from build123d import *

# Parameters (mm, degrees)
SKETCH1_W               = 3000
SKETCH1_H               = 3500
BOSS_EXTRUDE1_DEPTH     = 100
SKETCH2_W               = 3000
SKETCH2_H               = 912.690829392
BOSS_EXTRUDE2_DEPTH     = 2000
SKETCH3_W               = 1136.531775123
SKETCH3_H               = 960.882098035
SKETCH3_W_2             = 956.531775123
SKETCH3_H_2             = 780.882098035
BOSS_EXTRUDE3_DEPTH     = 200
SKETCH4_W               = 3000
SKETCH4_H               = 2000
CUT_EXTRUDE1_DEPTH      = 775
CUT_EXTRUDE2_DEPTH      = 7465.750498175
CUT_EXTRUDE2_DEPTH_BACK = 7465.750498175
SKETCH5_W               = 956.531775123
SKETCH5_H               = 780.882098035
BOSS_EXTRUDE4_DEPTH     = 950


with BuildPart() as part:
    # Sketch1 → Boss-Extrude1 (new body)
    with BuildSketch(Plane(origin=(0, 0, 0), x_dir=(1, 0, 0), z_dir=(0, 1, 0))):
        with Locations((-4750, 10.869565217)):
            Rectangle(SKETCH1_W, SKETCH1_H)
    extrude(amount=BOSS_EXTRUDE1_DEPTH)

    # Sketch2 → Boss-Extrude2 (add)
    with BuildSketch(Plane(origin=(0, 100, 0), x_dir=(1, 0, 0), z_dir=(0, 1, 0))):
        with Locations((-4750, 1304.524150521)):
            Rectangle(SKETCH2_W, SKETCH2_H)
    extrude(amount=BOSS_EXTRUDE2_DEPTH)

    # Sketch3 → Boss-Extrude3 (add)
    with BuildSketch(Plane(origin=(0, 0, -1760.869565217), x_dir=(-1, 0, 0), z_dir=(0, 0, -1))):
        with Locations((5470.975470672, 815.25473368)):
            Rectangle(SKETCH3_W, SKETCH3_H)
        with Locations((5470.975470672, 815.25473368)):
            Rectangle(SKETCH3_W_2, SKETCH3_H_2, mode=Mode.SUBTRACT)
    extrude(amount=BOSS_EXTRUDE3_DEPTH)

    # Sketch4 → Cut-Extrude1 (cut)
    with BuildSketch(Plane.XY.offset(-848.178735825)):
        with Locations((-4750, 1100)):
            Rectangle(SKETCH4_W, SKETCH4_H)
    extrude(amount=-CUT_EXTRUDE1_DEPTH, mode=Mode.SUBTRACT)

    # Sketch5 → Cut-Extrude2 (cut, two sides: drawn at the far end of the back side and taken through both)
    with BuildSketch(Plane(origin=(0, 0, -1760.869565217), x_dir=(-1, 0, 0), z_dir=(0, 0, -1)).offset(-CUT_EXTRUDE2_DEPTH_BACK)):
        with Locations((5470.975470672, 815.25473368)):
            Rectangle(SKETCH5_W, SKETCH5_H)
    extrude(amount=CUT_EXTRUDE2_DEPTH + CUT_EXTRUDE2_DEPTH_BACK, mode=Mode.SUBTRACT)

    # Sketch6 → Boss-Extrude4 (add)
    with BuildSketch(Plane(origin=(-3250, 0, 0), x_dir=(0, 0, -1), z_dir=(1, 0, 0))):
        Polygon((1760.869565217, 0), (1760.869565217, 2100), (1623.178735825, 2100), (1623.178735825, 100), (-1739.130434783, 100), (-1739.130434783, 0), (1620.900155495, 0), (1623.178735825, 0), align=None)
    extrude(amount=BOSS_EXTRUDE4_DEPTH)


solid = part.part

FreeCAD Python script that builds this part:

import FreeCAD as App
import Part
import Sketcher

V = App.Vector


def add_polygon(sketch, points):
    """Adds a closed chain of lines whose ends are joined by coincident constraints."""
    first, n = sketch.GeometryCount, len(points)
    for a, b in zip(points, points[1:] + points[:1]):
        sketch.addGeometry(Part.LineSegment(App.Vector(*a, 0), App.Vector(*b, 0)), False)
    for i in range(n):
        sketch.addConstraint(Sketcher.Constraint("Coincident", first + i, 2, first + (i + 1) % n, 1))

doc = App.newDocument("Part")
body = doc.addObject("PartDesign::Body", "Body")

sketch1 = body.newObject("Sketcher::SketchObject", "Sketch")
sketch1.AttachmentSupport = (doc.getObject("XZ_Plane"), [""])
sketch1.MapMode = "FlatFace"
add_polygon(sketch1, [(-6250, -1761), (-6250, 1739), (-3250, 1739), (-3250, -1761)])
sketch1.addConstraint(Sketcher.Constraint("Vertical", 0))
sketch1.addConstraint(Sketcher.Constraint("Horizontal", 1))
sketch1.addConstraint(Sketcher.Constraint("Vertical", 2))
sketch1.addConstraint(Sketcher.Constraint("Horizontal", 3))
sketch1.addConstraint(Sketcher.Constraint("DistanceX", 1, 1, 1, 2, 3000.0))
sketch1.addConstraint(Sketcher.Constraint("DistanceY", 0, 1, 0, 2, 3500.0))
sketch1.addConstraint(Sketcher.Constraint("DistanceX", 0, 2, -1, 1, 6250.0))
sketch1.addConstraint(Sketcher.Constraint("DistanceY", -1, 1, 0, 2, 1739.130435))
pad1 = body.newObject("PartDesign::Pad", "Pad")
pad1.Profile = sketch1
pad1.Length = 100
pad1.Reversed = True

sketch2 = body.newObject("Sketcher::SketchObject", "Sketch001")
sketch2.AttachmentSupport = (doc.getObject("XZ_Plane"), [""])
sketch2.MapMode = "FlatFace"
sketch2.AttachmentOffset = App.Placement(V(0, 0, -100), App.Rotation())
add_polygon(sketch2, [(-6250, -1761), (-6250, -848), (-3250, -848), (-3250, -1761)])
sketch2.addConstraint(Sketcher.Constraint("Vertical", 0))
sketch2.addConstraint(Sketcher.Constraint("Horizontal", 1))
sketch2.addConstraint(Sketcher.Constraint("Vertical", 2))
sketch2.addConstraint(Sketcher.Constraint("Horizontal", 3))
sketch2.addConstraint(Sketcher.Constraint("DistanceX", 1, 1, 1, 2, 3000.0))
sketch2.addConstraint(Sketcher.Constraint("DistanceX", 0, 2, -1, 1, 6250.0))
sketch2.addConstraint(Sketcher.Constraint("DistanceY", 0, 1, 0, 2, 912.690829))
sketch2.addConstraint(Sketcher.Constraint("DistanceY", 0, 2, -1, 1, 848.178736))
pad2 = body.newObject("PartDesign::Pad", "Pad001")
pad2.Profile = sketch2
pad2.Length = 2000
pad2.Reversed = True

sketch3 = body.newObject("Sketcher::SketchObject", "Sketch002")
sketch3.AttachmentSupport = (doc.getObject("XY_Plane"), [""])
sketch3.MapMode = "FlatFace"
sketch3.AttachmentOffset = App.Placement(V(0, 0, -1760.869565), App.Rotation())
add_polygon(sketch3, [(-4903, 1296), (-4903, 335), (-6039, 335), (-6039, 1296)])
add_polygon(sketch3, [(-5949, 425), (-4993, 425), (-4993, 1206), (-5949, 1206)])
sketch3.addConstraint(Sketcher.Constraint("Vertical", 0))
sketch3.addConstraint(Sketcher.Constraint("Horizontal", 1))
sketch3.addConstraint(Sketcher.Constraint("Vertical", 2))
sketch3.addConstraint(Sketcher.Constraint("Horizontal", 3))
sketch3.addConstraint(Sketcher.Constraint("Horizontal", 4))
sketch3.addConstraint(Sketcher.Constraint("Vertical", 5))
sketch3.addConstraint(Sketcher.Constraint("Horizontal", 6))
sketch3.addConstraint(Sketcher.Constraint("Vertical", 7))
sketch3.addConstraint(Sketcher.Constraint("DistanceX", 4, 2, 0, 2, 90.0))
sketch3.addConstraint(Sketcher.Constraint("DistanceY", 0, 2, 4, 2, 90.0))
sketch3.addConstraint(Sketcher.Constraint("DistanceY", 5, 2, 3, 2, 90.0))
sketch3.addConstraint(Sketcher.Constraint("DistanceX", 2, 2, 6, 2, 90.0))
sketch3.addConstraint(Sketcher.Constraint("DistanceY", 0, 2, 0, 1, 960.882098))
sketch3.addConstraint(Sketcher.Constraint("DistanceX", 1, 2, 1, 1, 1136.531775))
sketch3.addConstraint(Sketcher.Constraint("DistanceX", 1, 2, -1, 1, 6039.241358))
sketch3.addConstraint(Sketcher.Constraint("DistanceY", -1, 1, 0, 2, 334.813685))
pad3 = body.newObject("PartDesign::Pad", "Pad002")
pad3.Profile = sketch3
pad3.Length = 200
pad3.Reversed = True

sketch4 = body.newObject("Sketcher::SketchObject", "Sketch003")
sketch4.AttachmentSupport = (doc.getObject("XY_Plane"), [""])
sketch4.MapMode = "FlatFace"
sketch4.AttachmentOffset = App.Placement(V(0, 0, -848.178736), App.Rotation())
add_polygon(sketch4, [(-6250, 2100), (-6250, 100), (-3250, 100), (-3250, 2100)])
sketch4.addConstraint(Sketcher.Constraint("Vertical", 0))
sketch4.addConstraint(Sketcher.Constraint("Horizontal", 1))
sketch4.addConstraint(Sketcher.Constraint("Vertical", 2))
sketch4.addConstraint(Sketcher.Constraint("Horizontal", 3))
sketch4.addConstraint(Sketcher.Constraint("DistanceX", 1, 1, 1, 2, 3000.0))
sketch4.addConstraint(Sketcher.Constraint("DistanceY", 0, 2, 0, 1, 2000.0))
sketch4.addConstraint(Sketcher.Constraint("DistanceX", 0, 2, -1, 1, 6250.0))
sketch4.addConstraint(Sketcher.Constraint("DistanceY", -1, 1, 0, 2, 100.0))
pocket1 = body.newObject("PartDesign::Pocket", "Pocket")
pocket1.Profile = sketch4
pocket1.Length = 775

sketch5 = body.newObject("Sketcher::SketchObject", "Sketch004")
sketch5.AttachmentSupport = (doc.getObject("XY_Plane"), [""])
sketch5.MapMode = "FlatFace"
sketch5.AttachmentOffset = App.Placement(V(0, 0, -1760.869565), App.Rotation())
add_polygon(sketch5, [(-4993, 1206), (-4993, 425), (-5949, 425), (-5949, 1206)])
sketch5.addConstraint(Sketcher.Constraint("Vertical", 0))
sketch5.addConstraint(Sketcher.Constraint("Horizontal", 1))
sketch5.addConstraint(Sketcher.Constraint("Vertical", 2))
sketch5.addConstraint(Sketcher.Constraint("Horizontal", 3))
sketch5.addConstraint(Sketcher.Constraint("DistanceY", 0, 2, 0, 1, 780.882098))
sketch5.addConstraint(Sketcher.Constraint("DistanceX", 1, 2, 1, 1, 956.531775))
sketch5.addConstraint(Sketcher.Constraint("DistanceX", 1, 2, -1, 1, 5949.241358))
sketch5.addConstraint(Sketcher.Constraint("DistanceY", -1, 1, 0, 2, 424.813685))
pocket2 = body.newObject("PartDesign::Pocket", "Pocket001")
pocket2.Profile = sketch5
pocket2.Type = "ThroughAll"
pocket2.Midplane = True

sketch6 = body.newObject("Sketcher::SketchObject", "Sketch005")
sketch6.AttachmentSupport = (doc.getObject("YZ_Plane"), [""])
sketch6.MapMode = "FlatFace"
sketch6.AttachmentOffset = App.Placement(V(0, 0, -3250), App.Rotation())
add_polygon(sketch6, [(0, -1761), (2100, -1761), (2100, -1623), (100, -1623), (100, 1739), (0, 1739)])
sketch6.addConstraint(Sketcher.Constraint("Horizontal", 0))
sketch6.addConstraint(Sketcher.Constraint("Vertical", 1))
sketch6.addConstraint(Sketcher.Constraint("Horizontal", 2))
sketch6.addConstraint(Sketcher.Constraint("Vertical", 3))
sketch6.addConstraint(Sketcher.Constraint("Horizontal", 4))
sketch6.addConstraint(Sketcher.Constraint("Vertical", 5))
sketch6.addConstraint(Sketcher.Constraint("PointOnObject", 4, 2, -2))
sketch6.addConstraint(Sketcher.Constraint("DistanceX", 0, 1, 0, 2, 2100.0))
sketch6.addConstraint(Sketcher.Constraint("DistanceX", 2, 2, 2, 1, 2000.0))
sketch6.addConstraint(Sketcher.Constraint("DistanceY", 5, 2, 5, 1, 3500.0))
sketch6.addConstraint(Sketcher.Constraint("DistanceY", 1, 1, 1, 2, 137.690829))
sketch6.addConstraint(Sketcher.Constraint("DistanceY", 0, 2, -1, 1, 1760.869565))
pad4 = body.newObject("PartDesign::Pad", "Pad003")
pad4.Profile = sketch6
pad4.Length = 950

doc.recompute()
